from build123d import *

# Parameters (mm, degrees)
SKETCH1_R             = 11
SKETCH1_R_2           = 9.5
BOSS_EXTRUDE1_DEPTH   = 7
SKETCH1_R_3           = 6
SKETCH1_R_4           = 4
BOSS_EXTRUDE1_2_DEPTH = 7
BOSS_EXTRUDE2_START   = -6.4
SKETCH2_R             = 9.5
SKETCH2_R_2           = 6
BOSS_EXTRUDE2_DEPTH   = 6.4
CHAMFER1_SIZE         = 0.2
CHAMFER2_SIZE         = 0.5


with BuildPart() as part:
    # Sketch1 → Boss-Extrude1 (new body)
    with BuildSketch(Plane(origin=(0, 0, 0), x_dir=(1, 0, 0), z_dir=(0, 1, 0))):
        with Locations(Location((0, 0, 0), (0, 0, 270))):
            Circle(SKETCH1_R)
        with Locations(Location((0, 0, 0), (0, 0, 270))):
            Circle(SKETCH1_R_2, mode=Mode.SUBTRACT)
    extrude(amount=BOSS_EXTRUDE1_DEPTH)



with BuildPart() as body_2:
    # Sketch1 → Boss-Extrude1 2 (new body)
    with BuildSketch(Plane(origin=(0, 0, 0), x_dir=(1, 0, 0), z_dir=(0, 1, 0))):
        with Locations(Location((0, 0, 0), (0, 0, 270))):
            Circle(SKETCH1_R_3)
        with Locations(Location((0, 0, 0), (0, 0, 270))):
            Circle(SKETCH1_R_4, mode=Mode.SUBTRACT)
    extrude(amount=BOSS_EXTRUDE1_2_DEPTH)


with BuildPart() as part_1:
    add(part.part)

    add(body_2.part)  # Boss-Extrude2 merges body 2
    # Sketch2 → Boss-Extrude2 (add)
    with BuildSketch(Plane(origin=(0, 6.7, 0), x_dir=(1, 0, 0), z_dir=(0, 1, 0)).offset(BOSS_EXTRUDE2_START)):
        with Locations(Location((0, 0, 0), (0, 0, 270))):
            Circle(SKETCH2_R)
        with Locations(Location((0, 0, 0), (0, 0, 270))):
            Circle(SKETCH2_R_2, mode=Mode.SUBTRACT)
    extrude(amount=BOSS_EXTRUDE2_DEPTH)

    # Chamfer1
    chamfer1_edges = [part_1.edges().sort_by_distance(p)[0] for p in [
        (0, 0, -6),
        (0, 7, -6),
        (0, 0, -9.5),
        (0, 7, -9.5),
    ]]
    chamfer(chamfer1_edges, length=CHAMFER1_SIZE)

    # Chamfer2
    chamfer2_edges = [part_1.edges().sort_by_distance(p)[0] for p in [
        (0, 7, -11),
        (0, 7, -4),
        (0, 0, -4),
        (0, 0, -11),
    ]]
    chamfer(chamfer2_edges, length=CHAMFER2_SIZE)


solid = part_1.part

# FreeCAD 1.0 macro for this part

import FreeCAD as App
import Part
import Sketcher
from FreeCAD import Vector


def edges_at(feature, points):
    """Names of the edges that pass closest to the given points."""
    edges = feature.Shape.Edges
    near = lambda p: min(range(len(edges)), key=lambda i: edges[i].distToShape(Part.Vertex(*p))[0])
    return sorted({f"Edge{near(p) + 1}" for p in points})

doc = App.newDocument("Part")
body = doc.addObject("PartDesign::Body", "Body")

# Sketch on XZ plane
sketch1 = doc.addObject("Sketcher::SketchObject", "Sketch")
body.addObject(sketch1)
sketch1.AttachmentSupport = (doc.XZ_Plane, [""])
sketch1.MapMode = "FlatFace"
sketch1.addGeometry(Part.Circle(Vector(0, 0, 0), Vector(0, 0, 1), 11), False)
sketch1.addGeometry(Part.Circle(Vector(0, 0, 0), Vector(0, 0, 1), 10), False)
sketch1.addConstraint(Sketcher.Constraint("Coincident", 0, 3, -1, 1))
sketch1.addConstraint(Sketcher.Constraint("Coincident", 1, 3, -1, 1))
sketch1.addConstraint(Sketcher.Constraint("Diameter", 0, 22.0))
sketch1.addConstraint(Sketcher.Constraint("Diameter", 1, 19.0))
pad1 = doc.addObject("PartDesign::Pad", "Pad")
body.addObject(pad1)
pad1.Profile = sketch1
pad1.Length = 7
pad1.Reversed = True
body2 = doc.addObject("PartDesign::Body", "Body001")

# Sketch on XZ plane
sketch2 = doc.addObject("Sketcher::SketchObject", "Sketch001")
body2.addObject(sketch2)
sketch2.AttachmentSupport = (doc.getObject("XZ_Plane001"), [""])
sketch2.MapMode = "FlatFace"
sketch2.addGeometry(Part.Circle(Vector(0, 0, 0), Vector(0, 0, 1), 6), False)
sketch2.addGeometry(Part.Circle(Vector(0, 0, 0), Vector(0, 0, 1), 4), False)
sketch2.addConstraint(Sketcher.Constraint("Coincident", 0, 3, -1, 1))
sketch2.addConstraint(Sketcher.Constraint("Coincident", 1, 3, -1, 1))
sketch2.addConstraint(Sketcher.Constraint("Diameter", 0, 12.0))
sketch2.addConstraint(Sketcher.Constraint("Diameter", 1, 8.0))
pad2 = doc.addObject("PartDesign::Pad", "Pad001")
body2.addObject(pad2)
pad2.Profile = sketch2
pad2.Length = 7
pad2.Reversed = True
body.AllowCompound = True
doc.recompute()

boolean = doc.addObject("PartDesign::Boolean", "Boolean")
body.addObject(boolean)
boolean.Type = "Fuse"
boolean.addObjects([body2])

# Sketch on XZ plane
sketch3 = doc.addObject("Sketcher::SketchObject", "Sketch002")
body.addObject(sketch3)
sketch3.AttachmentSupport = (doc.XZ_Plane, [""])
sketch3.MapMode = "FlatFace"
sketch3.AttachmentOffset = App.Placement(Vector(0, 0, -0.3), App.Rotation())
sketch3.addGeometry(Part.Circle(Vector(0, 0, 0), Vector(0, 0, 1), 10), False)
sketch3.addGeometry(Part.Circle(Vector(0, 0, 0), Vector(0, 0, 1), 6), False)
sketch3.addConstraint(Sketcher.Constraint("Coincident", 0, 3, -1, 1))
sketch3.addConstraint(Sketcher.Constraint("Coincident", 1, 3, -1, 1))
sketch3.addConstraint(Sketcher.Constraint("Diameter", 0, 19.0))
sketch3.addConstraint(Sketcher.Constraint("Diameter", 1, 12.0))
pad3 = doc.addObject("PartDesign::Pad", "Pad002")
body.addObject(pad3)
pad3.Profile = sketch3
pad3.Length = 6.4
pad3.Reversed = True
doc.recompute()

chamfer = doc.addObject("PartDesign::Chamfer", "Chamfer")
body.addObject(chamfer)
chamfer.Base = (pad3, edges_at(pad3, [
    (0, 0, -6),
    (0, 7, -6),
    (0, 0, -9.5),
    (0, 7, -9.5),
]))
chamfer.Size = 0.2
doc.recompute()

chamfer2 = doc.addObject("PartDesign::Chamfer", "Chamfer001")
body.addObject(chamfer2)
chamfer2.Base = (chamfer, edges_at(chamfer, [
    (0, 7, -11),
    (0, 7, -4),
    (0, 0, -4),
    (0, 0, -11),
]))
chamfer2.Size = 0.5

doc.recompute()
